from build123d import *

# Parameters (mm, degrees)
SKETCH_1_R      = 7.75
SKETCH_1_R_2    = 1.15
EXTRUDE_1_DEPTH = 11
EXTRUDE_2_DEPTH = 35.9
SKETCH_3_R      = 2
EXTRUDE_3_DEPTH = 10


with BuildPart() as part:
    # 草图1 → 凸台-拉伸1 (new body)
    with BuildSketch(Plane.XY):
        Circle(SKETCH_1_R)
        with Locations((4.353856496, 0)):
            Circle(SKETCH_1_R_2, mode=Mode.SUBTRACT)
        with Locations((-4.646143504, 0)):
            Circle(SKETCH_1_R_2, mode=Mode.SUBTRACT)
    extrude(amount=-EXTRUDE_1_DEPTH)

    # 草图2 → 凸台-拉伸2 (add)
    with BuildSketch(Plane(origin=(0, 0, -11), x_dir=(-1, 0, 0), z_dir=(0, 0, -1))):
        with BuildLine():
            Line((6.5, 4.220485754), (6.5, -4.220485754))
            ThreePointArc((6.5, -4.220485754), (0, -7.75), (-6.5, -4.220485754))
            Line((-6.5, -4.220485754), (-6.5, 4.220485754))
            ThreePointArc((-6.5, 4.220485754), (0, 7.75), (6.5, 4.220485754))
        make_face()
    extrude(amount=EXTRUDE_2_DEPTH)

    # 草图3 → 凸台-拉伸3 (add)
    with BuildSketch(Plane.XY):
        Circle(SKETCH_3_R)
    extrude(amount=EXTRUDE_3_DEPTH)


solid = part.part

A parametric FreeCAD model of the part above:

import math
import FreeCAD as App
import Part
import Sketcher

doc = App.newDocument("Part")
params = doc.addObject("Spreadsheet::Sheet", "Params")
for row, (alias, value) in enumerate([
    ("sketch1_diameter", "15.5 mm"),
    ("sketch1_diameter2", "2.3 mm"),
    ("pad1_length", "11 mm"),
    ("sketch2_radius", "7.75 mm"),
    ("pad2_length", "35.9 mm"),
    ("sketch3_diameter", "4 mm"),
    ("pad3_length", "10 mm"),
], start=1):
    params.set(f"A{row}", alias)
    params.set(f"B{row}", "=" + value)
    params.setAlias(f"B{row}", alias)

body = doc.addObject("PartDesign::Body", "Body")

sketch1 = body.newObject("Sketcher::SketchObject", "Sketch")
sketch1.AttachmentSupport = (doc.getObject("XY_Plane"), [""])
sketch1.MapMode = "FlatFace"
sketch1.addGeometry(Part.Circle(App.Vector(0, 0, 0), App.Vector(0, 0, 1), 7.8), False)
sketch1.addGeometry(Part.Circle(App.Vector(-4.6, 0, 0), App.Vector(0, 0, 1), 1.1), False)
sketch1.addGeometry(Part.Circle(App.Vector(4.4, 0, 0), App.Vector(0, 0, 1), 1.1), False)
sketch1.addConstraint(Sketcher.Constraint("Coincident", 0, 3, -1, 1))
sketch1.addConstraint(Sketcher.Constraint("Equal", 1, 2))
sketch1.addConstraint(Sketcher.Constraint("PointOnObject", 1, 3, -1))
sketch1.addConstraint(Sketcher.Constraint("PointOnObject", 2, 3, -1))
sketch1.addConstraint(Sketcher.Constraint("Diameter", 0, 15.5))
sketch1.addConstraint(Sketcher.Constraint("Diameter", 1, 2.3))
sketch1.addConstraint(Sketcher.Constraint("DistanceX", 1, 3, 2, 3, 9.0))
sketch1.addConstraint(Sketcher.Constraint("DistanceX", 1, 3, -1, 1, 4.646144))
sketch1.setExpression("Constraints[4]", "Params.sketch1_diameter")
sketch1.setExpression("Constraints[5]", "Params.sketch1_diameter2")
pad1 = body.newObject("PartDesign::Pad", "Pad")
pad1.Profile = sketch1
pad1.setExpression("Length", "Params.pad1_length")
pad1.Reversed = True

sketch2 = body.newObject("Sketcher::SketchObject", "Sketch001")
sketch2.AttachmentSupport = (doc.getObject("XY_Plane"), [""])
sketch2.MapMode = "FlatFace"
sketch2.AttachmentOffset = App.Placement(App.Vector(0, 0, -11), App.Rotation())
sketch2.addGeometry(Part.LineSegment(App.Vector(-6, -4, 0), App.Vector(-6, 4, 0)), False)
sketch2.addGeometry(Part.ArcOfCircle(Part.Circle(App.Vector(0, 0, 0), App.Vector(0, 0, 1), 8), math.radians(33), math.radians(147)), False)
sketch2.addGeometry(Part.LineSegment(App.Vector(6, 4, 0), App.Vector(6, -4, 0)), False)
sketch2.addGeometry(Part.ArcOfCircle(Part.Circle(App.Vector(0, 0, 0), App.Vector(0, 0, 1), 8), math.radians(-147), math.radians(-33)), False)
sketch2.addConstraint(Sketcher.Constraint("Coincident", 0, 2, 1, 2))
sketch2.addConstraint(Sketcher.Constraint("Coincident", 1, 1, 2, 1))
sketch2.addConstraint(Sketcher.Constraint("Coincident", 2, 2, 3, 2))
sketch2.addConstraint(Sketcher.Constraint("Coincident", 3, 1, 0, 1))
sketch2.addConstraint(Sketcher.Constraint("Vertical", 0))
sketch2.addConstraint(Sketcher.Constraint("Vertical", 2))
sketch2.addConstraint(Sketcher.Constraint("Coincident", 1, 3, -1, 1))
sketch2.addConstraint(Sketcher.Constraint("Coincident", 3, 3, -1, 1))
sketch2.addConstraint(Sketcher.Constraint("Equal", 1, 3))
sketch2.addConstraint(Sketcher.Constraint("Horizontal", 0, 2, 1, 1))
sketch2.addConstraint(Sketcher.Constraint("Radius", 1, 7.75))
sketch2.addConstraint(Sketcher.Constraint("DistanceX", 0, 2, 1, 1, 13.0))
sketch2.setExpression("Constraints[10]", "Params.sketch2_radius")
pad2 = body.newObject("PartDesign::Pad", "Pad001")
pad2.Profile = sketch2
pad2.setExpression("Length", "Params.pad2_length")
pad2.Reversed = True

sketch3 = body.newObject("Sketcher::SketchObject", "Sketch002")
sketch3.AttachmentSupport = (doc.getObject("XY_Plane"), [""])
sketch3.MapMode = "FlatFace"
sketch3.addGeometry(Part.Circle(App.Vector(0, 0, 0), App.Vector(0, 0, 1), 2), False)
sketch3.addConstraint(Sketcher.Constraint("Coincident", 0, 3, -1, 1))
sketch3.addConstraint(Sketcher.Constraint("Diameter", 0, 4.0))
sketch3.setExpression("Constraints[1]", "Params.sketch3_diameter")
pad3 = body.newObject("PartDesign::Pad", "Pad002")
pad3.Profile = sketch3
pad3.setExpression("Length", "Params.pad3_length")

doc.recompute()
